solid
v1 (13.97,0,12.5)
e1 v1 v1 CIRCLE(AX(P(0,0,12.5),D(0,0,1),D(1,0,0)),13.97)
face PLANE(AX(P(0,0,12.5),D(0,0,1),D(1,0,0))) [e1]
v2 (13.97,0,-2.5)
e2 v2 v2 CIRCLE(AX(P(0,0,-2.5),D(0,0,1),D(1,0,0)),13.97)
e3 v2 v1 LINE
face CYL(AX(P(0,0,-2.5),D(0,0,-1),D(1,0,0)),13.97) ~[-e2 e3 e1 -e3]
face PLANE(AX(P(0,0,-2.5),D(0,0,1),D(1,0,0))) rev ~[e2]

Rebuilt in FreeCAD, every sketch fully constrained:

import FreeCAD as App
import Part
import Sketcher
Q = App.Units.Quantity

doc = App.newDocument("Part")
body = doc.addObject("PartDesign::Body", "Body")

sketch1 = body.newObject("Sketcher::SketchObject", "Sketch")
sketch1.AttachmentSupport = (doc.getObject("XY_Plane"), [""])
sketch1.MapMode = "FlatFace"
sketch1.AttachmentOffset = App.Placement(App.Vector(0, 0, -2.5), App.Rotation())
sketch1.addGeometry(Part.Circle(App.Vector(0, 0, 0), App.Vector(0, 0, 1), 14), False)
sketch1.addConstraint([
    Sketcher.Constraint("Coincident", 0, 3, -1, 1),
    Sketcher.Constraint("Diameter", 0, Q("27.94 mm")),
])
pad1 = body.newObject("PartDesign::Pad", "Pad")
pad1.Profile = sketch1
pad1.Length = 15

doc.recompute()
